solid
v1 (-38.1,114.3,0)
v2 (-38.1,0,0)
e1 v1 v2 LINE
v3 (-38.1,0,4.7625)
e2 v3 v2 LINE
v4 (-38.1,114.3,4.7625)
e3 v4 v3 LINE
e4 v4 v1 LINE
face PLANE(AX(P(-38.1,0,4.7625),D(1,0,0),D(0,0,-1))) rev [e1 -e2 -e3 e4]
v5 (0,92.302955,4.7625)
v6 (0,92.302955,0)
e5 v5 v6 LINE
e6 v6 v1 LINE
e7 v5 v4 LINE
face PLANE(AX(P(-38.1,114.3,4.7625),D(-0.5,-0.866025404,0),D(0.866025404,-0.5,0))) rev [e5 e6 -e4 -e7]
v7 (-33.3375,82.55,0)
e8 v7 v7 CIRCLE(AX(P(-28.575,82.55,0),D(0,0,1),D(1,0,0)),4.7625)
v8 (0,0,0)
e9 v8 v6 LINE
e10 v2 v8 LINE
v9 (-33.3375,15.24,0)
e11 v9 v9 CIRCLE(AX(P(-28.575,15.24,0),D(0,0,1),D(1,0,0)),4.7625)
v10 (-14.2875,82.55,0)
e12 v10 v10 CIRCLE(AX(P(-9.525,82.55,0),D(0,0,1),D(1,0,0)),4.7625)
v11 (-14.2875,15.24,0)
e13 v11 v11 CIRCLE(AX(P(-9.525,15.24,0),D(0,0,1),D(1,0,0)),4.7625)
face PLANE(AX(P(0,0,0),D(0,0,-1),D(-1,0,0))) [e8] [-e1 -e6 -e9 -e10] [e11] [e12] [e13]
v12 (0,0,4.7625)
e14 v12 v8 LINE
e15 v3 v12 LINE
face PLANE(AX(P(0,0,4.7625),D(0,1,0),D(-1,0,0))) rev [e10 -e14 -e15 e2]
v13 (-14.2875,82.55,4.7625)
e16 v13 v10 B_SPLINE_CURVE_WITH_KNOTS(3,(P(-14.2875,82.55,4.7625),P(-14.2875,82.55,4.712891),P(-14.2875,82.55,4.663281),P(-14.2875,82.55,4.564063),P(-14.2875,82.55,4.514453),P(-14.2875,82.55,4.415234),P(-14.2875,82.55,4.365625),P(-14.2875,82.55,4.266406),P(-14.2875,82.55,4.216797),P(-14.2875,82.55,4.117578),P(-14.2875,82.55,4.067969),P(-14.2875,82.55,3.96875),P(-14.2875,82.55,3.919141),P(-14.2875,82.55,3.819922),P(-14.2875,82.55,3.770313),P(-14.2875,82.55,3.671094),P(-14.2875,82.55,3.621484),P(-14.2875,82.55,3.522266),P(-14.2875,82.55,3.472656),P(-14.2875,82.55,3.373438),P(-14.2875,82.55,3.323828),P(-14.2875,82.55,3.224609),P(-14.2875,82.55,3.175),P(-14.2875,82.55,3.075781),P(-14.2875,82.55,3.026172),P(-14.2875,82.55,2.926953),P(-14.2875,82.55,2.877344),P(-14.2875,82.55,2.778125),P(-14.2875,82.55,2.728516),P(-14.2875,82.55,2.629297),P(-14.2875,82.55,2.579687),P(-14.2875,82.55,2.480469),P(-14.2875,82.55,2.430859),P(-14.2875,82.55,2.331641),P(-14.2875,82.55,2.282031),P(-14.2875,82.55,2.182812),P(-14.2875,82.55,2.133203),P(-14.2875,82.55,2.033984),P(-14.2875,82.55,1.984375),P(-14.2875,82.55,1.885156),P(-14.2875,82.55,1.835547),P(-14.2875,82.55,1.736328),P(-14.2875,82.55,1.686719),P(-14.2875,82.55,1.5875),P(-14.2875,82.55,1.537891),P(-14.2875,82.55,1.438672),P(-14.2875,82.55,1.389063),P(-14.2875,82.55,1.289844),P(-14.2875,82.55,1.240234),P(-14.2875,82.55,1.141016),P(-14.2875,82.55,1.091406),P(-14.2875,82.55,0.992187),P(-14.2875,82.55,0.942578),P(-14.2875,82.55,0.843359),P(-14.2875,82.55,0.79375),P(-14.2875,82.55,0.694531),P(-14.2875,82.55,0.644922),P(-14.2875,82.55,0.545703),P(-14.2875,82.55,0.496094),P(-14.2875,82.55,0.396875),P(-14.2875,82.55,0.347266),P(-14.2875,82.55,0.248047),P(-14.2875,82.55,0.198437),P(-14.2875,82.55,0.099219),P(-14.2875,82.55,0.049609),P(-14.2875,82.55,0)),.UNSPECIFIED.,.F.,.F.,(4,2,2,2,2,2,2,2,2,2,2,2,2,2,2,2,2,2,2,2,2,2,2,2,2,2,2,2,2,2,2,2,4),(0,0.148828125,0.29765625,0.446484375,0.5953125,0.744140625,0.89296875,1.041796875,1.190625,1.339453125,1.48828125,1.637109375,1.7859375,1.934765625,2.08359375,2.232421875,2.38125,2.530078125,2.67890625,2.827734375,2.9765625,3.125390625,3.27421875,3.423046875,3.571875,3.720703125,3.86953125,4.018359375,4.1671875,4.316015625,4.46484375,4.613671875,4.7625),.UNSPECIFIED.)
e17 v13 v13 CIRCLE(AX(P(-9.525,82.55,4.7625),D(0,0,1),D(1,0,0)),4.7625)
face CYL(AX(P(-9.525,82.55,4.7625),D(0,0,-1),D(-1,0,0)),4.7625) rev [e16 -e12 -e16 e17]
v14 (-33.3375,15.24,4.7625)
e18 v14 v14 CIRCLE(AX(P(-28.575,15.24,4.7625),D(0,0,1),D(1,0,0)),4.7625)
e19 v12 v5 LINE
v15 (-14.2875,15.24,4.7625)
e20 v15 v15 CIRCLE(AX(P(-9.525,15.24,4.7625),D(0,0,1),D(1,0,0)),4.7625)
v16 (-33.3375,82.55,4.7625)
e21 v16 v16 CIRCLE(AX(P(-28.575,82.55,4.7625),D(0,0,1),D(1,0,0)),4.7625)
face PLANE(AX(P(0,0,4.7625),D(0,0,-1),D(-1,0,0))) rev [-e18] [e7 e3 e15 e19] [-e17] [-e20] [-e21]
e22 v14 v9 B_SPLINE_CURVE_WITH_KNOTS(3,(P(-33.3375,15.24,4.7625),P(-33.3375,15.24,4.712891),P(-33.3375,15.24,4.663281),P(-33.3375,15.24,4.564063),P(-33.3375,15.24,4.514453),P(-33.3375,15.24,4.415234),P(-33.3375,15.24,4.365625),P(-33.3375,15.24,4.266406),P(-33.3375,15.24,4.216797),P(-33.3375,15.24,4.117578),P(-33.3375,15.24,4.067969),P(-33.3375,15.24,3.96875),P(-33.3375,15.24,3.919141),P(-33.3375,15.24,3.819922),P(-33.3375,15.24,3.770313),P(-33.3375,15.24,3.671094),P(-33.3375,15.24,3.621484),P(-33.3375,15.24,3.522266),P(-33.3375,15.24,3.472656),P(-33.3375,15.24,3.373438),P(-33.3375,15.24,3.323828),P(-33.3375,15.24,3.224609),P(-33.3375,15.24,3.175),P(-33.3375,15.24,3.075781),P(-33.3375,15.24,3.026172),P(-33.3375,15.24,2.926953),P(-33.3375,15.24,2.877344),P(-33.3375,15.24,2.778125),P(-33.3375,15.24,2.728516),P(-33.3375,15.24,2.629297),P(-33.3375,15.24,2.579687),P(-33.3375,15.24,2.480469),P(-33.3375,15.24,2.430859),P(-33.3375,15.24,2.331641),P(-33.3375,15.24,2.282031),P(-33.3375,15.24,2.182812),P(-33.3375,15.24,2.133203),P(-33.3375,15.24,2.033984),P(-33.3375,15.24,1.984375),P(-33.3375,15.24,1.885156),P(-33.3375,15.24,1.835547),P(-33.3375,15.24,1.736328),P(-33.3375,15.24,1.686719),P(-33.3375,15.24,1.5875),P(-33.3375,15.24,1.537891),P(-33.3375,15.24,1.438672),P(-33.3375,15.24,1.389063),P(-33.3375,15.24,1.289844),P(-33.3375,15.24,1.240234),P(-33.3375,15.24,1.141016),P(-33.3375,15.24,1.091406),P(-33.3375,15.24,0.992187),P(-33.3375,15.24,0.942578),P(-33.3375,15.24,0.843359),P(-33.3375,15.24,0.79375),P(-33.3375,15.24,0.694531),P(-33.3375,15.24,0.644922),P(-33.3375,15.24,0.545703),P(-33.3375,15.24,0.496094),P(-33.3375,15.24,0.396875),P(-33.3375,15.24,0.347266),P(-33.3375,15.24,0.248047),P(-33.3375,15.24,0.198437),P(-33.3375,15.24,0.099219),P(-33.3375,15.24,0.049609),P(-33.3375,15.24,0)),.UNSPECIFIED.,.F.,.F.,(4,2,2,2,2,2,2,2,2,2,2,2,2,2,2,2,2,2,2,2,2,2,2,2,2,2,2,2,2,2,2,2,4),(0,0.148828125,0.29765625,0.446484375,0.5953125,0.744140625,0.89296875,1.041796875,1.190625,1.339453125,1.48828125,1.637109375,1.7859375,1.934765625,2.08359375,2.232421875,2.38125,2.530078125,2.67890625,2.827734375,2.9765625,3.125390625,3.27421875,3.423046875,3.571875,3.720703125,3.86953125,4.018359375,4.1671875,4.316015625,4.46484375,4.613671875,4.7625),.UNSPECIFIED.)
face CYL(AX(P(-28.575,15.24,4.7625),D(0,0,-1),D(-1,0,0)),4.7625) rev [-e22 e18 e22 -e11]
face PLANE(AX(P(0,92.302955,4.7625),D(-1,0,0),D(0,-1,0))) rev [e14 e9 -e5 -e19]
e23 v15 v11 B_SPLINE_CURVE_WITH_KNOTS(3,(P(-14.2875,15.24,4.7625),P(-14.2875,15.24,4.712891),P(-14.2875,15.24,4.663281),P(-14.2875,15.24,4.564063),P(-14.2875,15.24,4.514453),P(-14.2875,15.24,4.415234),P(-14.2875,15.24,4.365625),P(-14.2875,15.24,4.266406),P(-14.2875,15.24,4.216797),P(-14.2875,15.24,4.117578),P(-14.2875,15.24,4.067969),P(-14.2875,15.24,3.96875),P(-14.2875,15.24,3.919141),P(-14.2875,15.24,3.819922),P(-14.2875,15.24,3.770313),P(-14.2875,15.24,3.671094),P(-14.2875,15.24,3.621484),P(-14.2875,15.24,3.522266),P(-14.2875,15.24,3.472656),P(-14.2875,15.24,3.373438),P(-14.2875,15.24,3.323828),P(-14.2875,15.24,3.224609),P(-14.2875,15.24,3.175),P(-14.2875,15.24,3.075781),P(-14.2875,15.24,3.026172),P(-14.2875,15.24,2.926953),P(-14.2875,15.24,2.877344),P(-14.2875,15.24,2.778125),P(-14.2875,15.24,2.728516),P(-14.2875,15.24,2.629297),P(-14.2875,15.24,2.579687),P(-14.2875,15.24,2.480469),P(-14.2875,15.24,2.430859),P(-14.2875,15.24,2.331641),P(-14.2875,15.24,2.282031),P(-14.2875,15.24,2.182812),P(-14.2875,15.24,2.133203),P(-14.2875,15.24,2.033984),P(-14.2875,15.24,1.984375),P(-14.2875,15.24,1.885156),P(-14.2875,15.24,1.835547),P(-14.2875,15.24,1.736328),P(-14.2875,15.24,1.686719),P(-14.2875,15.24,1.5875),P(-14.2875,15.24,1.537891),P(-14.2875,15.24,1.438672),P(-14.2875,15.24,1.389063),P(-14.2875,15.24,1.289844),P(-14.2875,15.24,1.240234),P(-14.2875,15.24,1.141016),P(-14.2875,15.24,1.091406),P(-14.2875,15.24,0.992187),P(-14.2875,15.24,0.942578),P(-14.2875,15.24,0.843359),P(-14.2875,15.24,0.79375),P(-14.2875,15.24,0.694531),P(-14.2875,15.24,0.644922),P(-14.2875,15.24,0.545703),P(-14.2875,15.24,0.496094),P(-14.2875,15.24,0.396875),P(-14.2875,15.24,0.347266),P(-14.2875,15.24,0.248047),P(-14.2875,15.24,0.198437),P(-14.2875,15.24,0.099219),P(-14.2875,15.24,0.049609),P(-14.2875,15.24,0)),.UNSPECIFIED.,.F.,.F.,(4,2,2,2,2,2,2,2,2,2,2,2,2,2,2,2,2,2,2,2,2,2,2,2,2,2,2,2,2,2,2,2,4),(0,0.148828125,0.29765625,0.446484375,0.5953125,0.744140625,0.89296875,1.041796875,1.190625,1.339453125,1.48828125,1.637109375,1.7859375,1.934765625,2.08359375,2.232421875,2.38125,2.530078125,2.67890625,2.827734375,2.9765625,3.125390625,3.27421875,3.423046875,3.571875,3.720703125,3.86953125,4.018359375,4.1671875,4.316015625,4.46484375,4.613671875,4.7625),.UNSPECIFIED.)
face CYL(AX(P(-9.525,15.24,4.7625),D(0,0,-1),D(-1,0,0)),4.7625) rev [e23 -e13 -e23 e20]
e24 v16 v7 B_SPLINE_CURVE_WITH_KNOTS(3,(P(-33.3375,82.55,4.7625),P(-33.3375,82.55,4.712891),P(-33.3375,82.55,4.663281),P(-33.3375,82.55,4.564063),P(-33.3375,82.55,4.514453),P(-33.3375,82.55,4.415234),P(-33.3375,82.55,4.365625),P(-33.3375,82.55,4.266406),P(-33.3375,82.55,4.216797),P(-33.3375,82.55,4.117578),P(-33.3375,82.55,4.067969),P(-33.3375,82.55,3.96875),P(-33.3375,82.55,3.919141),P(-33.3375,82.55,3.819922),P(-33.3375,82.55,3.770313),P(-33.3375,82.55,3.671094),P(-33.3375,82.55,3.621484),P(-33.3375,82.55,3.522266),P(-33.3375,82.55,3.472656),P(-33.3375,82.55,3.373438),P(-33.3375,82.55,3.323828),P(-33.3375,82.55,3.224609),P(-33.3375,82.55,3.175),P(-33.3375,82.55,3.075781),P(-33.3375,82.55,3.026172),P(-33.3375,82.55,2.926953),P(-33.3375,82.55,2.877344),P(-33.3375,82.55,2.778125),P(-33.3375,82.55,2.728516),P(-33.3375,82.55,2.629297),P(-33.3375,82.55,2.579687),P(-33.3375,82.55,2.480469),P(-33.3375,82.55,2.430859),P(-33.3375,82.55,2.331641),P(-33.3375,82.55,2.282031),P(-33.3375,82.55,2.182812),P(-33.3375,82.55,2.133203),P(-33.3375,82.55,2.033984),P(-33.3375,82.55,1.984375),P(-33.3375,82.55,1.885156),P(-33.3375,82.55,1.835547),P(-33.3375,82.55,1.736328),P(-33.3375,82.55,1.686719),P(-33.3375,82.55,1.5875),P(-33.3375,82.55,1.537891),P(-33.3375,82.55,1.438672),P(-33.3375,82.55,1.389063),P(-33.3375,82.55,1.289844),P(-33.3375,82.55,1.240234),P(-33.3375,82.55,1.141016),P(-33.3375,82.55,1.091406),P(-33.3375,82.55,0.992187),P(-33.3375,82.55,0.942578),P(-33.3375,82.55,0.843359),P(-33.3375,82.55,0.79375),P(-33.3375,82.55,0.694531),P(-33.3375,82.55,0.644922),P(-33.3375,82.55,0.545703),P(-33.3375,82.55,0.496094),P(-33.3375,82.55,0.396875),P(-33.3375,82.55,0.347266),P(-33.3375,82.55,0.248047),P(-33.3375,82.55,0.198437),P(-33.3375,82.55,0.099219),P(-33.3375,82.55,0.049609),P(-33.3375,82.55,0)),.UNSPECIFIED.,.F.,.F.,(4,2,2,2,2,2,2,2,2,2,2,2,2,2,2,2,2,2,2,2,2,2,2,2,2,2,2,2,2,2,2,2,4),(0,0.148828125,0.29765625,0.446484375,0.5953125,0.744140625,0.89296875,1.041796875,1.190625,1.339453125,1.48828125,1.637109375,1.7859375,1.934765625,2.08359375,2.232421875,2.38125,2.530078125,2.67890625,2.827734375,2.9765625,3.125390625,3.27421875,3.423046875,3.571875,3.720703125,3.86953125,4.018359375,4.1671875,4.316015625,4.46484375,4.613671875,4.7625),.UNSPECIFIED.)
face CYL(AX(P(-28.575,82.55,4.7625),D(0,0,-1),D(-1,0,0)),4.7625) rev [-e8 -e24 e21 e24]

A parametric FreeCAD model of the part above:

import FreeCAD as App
import Part
import Sketcher
from FreeCAD import Vector
Q = App.Units.Quantity

doc = App.newDocument("Part")
body = doc.addObject("PartDesign::Body", "Body")

sketch1 = body.newObject("Sketcher::SketchObject", "Sketch")
sketch1.AttachmentSupport = (doc.getObject("XY_Plane"), [""])
sketch1.MapMode = "FlatFace"
sketch1.addGeometry(Part.LineSegment(Vector(-38.1, 0, 0), Vector(0, 0, 0)), False)
sketch1.addGeometry(Part.LineSegment(Vector(0, 0, 0), Vector(0, 92.3, 0)), False)
sketch1.addGeometry(Part.LineSegment(Vector(0, 92.3, 0), Vector(-38.1, 114.3, 0)), False)
sketch1.addGeometry(Part.LineSegment(Vector(-38.1, 114.3, 0), Vector(-38.1, 0, 0)), False)
sketch1.addGeometry(Part.Circle(Vector(-9.5, 15.2, 0), Vector(0, 0, 1), 4.8), False)
sketch1.addGeometry(Part.Circle(Vector(-28.6, 15.2, 0), Vector(0, 0, 1), 4.8), False)
sketch1.addGeometry(Part.Circle(Vector(-9.5, 82.5, 0), Vector(0, 0, 1), 4.8), False)
sketch1.addGeometry(Part.Circle(Vector(-28.6, 82.5, 0), Vector(0, 0, 1), 4.8), False)
sketch1.addConstraint(Sketcher.Constraint("Coincident", 0, 2, 1, 1))
sketch1.addConstraint(Sketcher.Constraint("Coincident", 1, 2, 2, 1))
sketch1.addConstraint(Sketcher.Constraint("Coincident", 2, 2, 3, 1))
sketch1.addConstraint(Sketcher.Constraint("Coincident", 3, 2, 0, 1))
sketch1.addConstraint(Sketcher.Constraint("Horizontal", 0))
sketch1.addConstraint(Sketcher.Constraint("Vertical", 1))
sketch1.addConstraint(Sketcher.Constraint("Vertical", 3))
sketch1.addConstraint(Sketcher.Constraint("Coincident", 0, 2, -1, 1))
sketch1.addConstraint(Sketcher.Constraint("Equal", 4, 5))
sketch1.addConstraint(Sketcher.Constraint("Equal", 5, 6))
sketch1.addConstraint(Sketcher.Constraint("Equal", 6, 7))
sketch1.addConstraint(Sketcher.Constraint("Horizontal", 4, 3, 5, 3))
sketch1.addConstraint(Sketcher.Constraint("Horizontal", 6, 3, 7, 3))
sketch1.addConstraint(Sketcher.Constraint("Vertical", 4, 3, 6, 3))
sketch1.addConstraint(Sketcher.Constraint("Vertical", 5, 3, 7, 3))
sketch1.addConstraint(Sketcher.Constraint("Diameter", 4, Q("0.375 in")))
sketch1.addConstraint(Sketcher.Constraint("DistanceX", 0, 1, 0, 2, Q("1.5 in")))
sketch1.addConstraint(Sketcher.Constraint("DistanceY", 3, 2, 3, 1, Q("4.5 in")))
sketch1.addConstraint(Sketcher.Constraint("Angle", 2, Q("150 deg")))
sketch1.addConstraint(Sketcher.Constraint("DistanceY", -1, 1, 4, 3, Q("0.6 in")))
sketch1.addConstraint(Sketcher.Constraint("DistanceY", -1, 1, 6, 3, Q("3.25 in")))
sketch1.addConstraint(Sketcher.Constraint("DistanceX", 5, 3, 4, 3, Q("0.75 in")))
sketch1.addConstraint(Sketcher.Constraint("DistanceX", 4, 3, -1, 1, Q("0.375 in")))
pad1 = body.newObject("PartDesign::Pad", "Pad")
pad1.Profile = sketch1
pad1.Length = Q("0.1875 in")

doc.recompute()
